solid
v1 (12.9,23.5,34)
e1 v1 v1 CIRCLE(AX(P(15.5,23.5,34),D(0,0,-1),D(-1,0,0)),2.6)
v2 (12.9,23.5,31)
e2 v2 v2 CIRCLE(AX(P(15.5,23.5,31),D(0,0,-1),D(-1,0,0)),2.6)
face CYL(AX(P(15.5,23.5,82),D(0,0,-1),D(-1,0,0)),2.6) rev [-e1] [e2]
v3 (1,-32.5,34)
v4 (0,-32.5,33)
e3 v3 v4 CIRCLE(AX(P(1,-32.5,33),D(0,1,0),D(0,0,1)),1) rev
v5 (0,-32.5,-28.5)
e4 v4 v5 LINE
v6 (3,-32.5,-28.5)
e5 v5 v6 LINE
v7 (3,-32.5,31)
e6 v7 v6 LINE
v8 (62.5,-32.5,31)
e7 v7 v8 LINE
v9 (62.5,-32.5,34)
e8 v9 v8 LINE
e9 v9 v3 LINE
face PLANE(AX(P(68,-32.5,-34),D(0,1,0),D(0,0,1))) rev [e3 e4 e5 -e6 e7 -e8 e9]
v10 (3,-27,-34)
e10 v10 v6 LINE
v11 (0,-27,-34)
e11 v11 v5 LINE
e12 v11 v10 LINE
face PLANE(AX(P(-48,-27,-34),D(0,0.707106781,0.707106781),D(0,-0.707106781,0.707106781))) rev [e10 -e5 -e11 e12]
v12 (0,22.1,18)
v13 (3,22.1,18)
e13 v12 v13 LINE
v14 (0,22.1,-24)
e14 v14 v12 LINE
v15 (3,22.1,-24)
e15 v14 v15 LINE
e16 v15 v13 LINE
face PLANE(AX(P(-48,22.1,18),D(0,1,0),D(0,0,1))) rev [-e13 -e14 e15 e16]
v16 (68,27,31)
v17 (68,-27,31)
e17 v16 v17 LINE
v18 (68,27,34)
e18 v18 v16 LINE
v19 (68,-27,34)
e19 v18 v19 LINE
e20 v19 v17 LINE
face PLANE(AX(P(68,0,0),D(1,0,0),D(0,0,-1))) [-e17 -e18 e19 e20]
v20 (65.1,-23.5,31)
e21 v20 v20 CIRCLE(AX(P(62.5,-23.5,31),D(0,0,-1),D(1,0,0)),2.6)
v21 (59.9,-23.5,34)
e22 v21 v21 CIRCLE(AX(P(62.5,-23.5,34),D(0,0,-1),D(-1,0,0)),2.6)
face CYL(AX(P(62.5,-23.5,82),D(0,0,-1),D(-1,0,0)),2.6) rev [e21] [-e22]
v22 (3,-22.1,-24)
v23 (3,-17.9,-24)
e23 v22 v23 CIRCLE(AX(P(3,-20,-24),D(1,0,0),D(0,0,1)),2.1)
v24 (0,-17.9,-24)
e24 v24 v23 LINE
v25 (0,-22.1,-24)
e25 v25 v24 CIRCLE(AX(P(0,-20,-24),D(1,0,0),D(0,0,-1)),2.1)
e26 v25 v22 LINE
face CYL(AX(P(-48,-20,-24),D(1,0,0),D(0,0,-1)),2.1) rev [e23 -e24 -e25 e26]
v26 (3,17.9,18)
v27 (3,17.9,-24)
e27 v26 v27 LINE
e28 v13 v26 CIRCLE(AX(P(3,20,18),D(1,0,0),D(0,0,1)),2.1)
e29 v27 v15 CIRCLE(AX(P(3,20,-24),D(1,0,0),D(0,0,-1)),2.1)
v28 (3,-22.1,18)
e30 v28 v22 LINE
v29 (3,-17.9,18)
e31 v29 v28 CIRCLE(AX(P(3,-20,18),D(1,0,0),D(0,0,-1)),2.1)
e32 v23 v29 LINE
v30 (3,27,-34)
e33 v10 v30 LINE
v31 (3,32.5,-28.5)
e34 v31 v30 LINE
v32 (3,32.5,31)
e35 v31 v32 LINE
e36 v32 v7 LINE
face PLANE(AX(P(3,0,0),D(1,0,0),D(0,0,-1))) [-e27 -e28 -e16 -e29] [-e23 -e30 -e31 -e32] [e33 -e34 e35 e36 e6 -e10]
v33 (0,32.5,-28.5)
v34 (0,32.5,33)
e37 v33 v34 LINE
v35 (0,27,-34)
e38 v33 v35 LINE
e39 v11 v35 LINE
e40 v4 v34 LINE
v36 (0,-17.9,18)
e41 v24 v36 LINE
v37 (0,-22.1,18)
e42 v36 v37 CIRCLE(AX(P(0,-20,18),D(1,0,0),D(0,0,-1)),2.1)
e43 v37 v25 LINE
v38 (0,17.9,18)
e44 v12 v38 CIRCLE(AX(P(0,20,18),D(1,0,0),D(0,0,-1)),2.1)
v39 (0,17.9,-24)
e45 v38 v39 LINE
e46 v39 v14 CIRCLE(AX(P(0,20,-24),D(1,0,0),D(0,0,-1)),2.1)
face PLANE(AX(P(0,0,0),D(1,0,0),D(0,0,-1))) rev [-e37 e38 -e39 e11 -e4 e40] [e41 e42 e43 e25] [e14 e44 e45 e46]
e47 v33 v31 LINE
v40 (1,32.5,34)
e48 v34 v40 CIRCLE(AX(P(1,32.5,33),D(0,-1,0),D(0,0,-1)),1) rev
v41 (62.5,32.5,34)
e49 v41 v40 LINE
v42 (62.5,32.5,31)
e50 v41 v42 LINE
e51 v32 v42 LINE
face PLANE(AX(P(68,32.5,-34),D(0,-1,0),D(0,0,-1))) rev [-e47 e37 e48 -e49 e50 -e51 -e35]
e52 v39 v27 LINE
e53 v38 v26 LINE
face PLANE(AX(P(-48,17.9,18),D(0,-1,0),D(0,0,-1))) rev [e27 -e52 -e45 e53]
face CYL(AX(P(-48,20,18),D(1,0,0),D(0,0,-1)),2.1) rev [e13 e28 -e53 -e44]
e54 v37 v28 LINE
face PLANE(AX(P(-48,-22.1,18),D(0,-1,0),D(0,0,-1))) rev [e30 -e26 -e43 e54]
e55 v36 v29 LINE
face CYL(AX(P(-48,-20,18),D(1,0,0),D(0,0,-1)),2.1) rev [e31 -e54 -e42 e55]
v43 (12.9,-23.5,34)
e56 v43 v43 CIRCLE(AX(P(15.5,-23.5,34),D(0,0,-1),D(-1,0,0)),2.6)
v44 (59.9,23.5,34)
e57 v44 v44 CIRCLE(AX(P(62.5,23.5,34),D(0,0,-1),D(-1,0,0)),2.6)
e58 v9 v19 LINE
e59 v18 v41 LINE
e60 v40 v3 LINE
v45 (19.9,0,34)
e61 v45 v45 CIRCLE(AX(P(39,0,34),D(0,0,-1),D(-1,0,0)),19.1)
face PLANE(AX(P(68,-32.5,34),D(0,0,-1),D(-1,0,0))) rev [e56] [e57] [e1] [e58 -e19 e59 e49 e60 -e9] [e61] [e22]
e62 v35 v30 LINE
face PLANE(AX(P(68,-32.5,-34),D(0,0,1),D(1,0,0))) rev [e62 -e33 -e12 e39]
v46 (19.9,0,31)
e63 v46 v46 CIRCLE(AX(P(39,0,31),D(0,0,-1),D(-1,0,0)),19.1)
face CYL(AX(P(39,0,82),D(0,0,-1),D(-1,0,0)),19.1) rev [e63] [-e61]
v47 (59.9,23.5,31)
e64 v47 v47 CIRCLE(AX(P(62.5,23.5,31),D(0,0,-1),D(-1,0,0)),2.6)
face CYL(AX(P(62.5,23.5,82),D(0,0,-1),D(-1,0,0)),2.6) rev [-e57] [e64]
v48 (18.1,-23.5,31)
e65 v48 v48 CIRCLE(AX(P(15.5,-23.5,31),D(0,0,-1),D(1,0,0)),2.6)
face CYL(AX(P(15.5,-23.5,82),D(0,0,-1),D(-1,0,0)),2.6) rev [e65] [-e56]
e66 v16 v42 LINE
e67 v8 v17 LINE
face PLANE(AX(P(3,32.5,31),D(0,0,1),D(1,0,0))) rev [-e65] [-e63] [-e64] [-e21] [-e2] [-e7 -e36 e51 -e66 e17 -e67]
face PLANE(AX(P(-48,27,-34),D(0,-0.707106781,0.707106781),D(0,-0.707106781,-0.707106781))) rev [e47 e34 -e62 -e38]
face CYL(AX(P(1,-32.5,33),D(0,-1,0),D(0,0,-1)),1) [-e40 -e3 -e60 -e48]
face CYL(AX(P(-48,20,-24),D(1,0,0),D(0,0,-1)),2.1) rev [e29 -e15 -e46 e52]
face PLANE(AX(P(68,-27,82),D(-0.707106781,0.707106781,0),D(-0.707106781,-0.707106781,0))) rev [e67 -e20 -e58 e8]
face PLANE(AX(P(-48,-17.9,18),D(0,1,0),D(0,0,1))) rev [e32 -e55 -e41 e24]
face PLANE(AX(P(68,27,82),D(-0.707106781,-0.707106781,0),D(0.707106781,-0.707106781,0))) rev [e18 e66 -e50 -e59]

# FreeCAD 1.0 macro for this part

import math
import FreeCAD as App
import Part
import Sketcher
Q = App.Units.Quantity


def edges_at(feature, points):
    """Names of the edges that pass closest to the given points."""
    edges = feature.Shape.Edges
    near = lambda p: min(range(len(edges)), key=lambda i: edges[i].distToShape(Part.Vertex(*p))[0])
    return sorted({f"Edge{near(p) + 1}" for p in points})


def add_polygon(sketch, points):
    """Adds a closed chain of lines whose ends are joined by coincident constraints."""
    first, n = sketch.GeometryCount, len(points)
    for a, b in zip(points, points[1:] + points[:1]):
        sketch.addGeometry(Part.LineSegment(App.Vector(*a, 0), App.Vector(*b, 0)), False)
    for i in range(n):
        sketch.addConstraint(Sketcher.Constraint("Coincident", first + i, 2, first + (i + 1) % n, 1))

doc = App.newDocument("Part")
body = doc.addObject("PartDesign::Body", "Body")

# Sketch on YZ plane
sketch1 = doc.addObject("Sketcher::SketchObject", "Sketch")
body.addObject(sketch1)
sketch1.AttachmentSupport = (doc.YZ_Plane, [""])
sketch1.MapMode = "FlatFace"
add_polygon(sketch1, [(32.5, 34), (-32.5, 34), (-32.5, -34), (32.5, -34)])  # lines 0-3
sketch1.addConstraint(Sketcher.Constraint("Horizontal", 0))
sketch1.addConstraint(Sketcher.Constraint("Vertical", 1))
sketch1.addConstraint(Sketcher.Constraint("Horizontal", 2))
sketch1.addConstraint(Sketcher.Constraint("Vertical", 3))
sketch1.addConstraint(Sketcher.Constraint("Symmetric", 0, 2, 2, 2, -1, 1))
sketch1.addConstraint(Sketcher.Constraint("DistanceX", 0, 2, 0, 1, Q("65 mm")))
sketch1.addConstraint(Sketcher.Constraint("DistanceY", 1, 2, 1, 1, Q("68 mm")))
pad1 = doc.addObject("PartDesign::Pad", "Pad")
body.addObject(pad1)
pad1.Profile = sketch1
pad1.Length = 68

# Sketch on YZ plane
sketch2 = doc.addObject("Sketcher::SketchObject", "Sketch001")
body.addObject(sketch2)
sketch2.AttachmentSupport = (doc.YZ_Plane, [""])
sketch2.MapMode = "FlatFace"
sketch2.AttachmentOffset = App.Placement(App.Vector(0, 0, 68), App.Rotation())
add_polygon(sketch2, [(32.5, 31), (-32.5, 31), (-32.5, -34), (32.5, -34)])  # lines 0-3
sketch2.addConstraint(Sketcher.Constraint("Horizontal", 0))
sketch2.addConstraint(Sketcher.Constraint("Vertical", 1))
sketch2.addConstraint(Sketcher.Constraint("Horizontal", 2))
sketch2.addConstraint(Sketcher.Constraint("Vertical", 3))
sketch2.addConstraint(Sketcher.Constraint("Equal", 2, 1))
sketch2.addConstraint(Sketcher.Constraint("DistanceX", 0, 2, 0, 1, Q("65 mm")))
sketch2.addConstraint(Sketcher.Constraint("DistanceY", -1, 1, 0, 2, Q("31 mm")))
sketch2.addConstraint(Sketcher.Constraint("DistanceX", 0, 2, -1, 1, Q("32.5 mm")))
pocket1 = doc.addObject("PartDesign::Pocket", "Pocket")
body.addObject(pocket1)
pocket1.Profile = sketch2
pocket1.Length = 65
doc.recompute()

fillet = doc.addObject("PartDesign::Fillet", "Fillet")
body.addObject(fillet)
fillet.Base = (pocket1, edges_at(pocket1, [(0, 0, 34)]))
fillet.Radius = 1

# Sketch on XY plane
sketch3 = doc.addObject("Sketcher::SketchObject", "Sketch002")
body.addObject(sketch3)
sketch3.AttachmentSupport = (doc.XY_Plane, [""])
sketch3.MapMode = "FlatFace"
sketch3.AttachmentOffset = App.Placement(App.Vector(0, 0, 31), App.Rotation())
sketch3.addGeometry(Part.Circle(App.Vector(62.5, 23.5, 0), App.Vector(0, 0, 1), 2.6), False)  # 0
sketch3.addGeometry(Part.Circle(App.Vector(15.5, 23.5, 0), App.Vector(0, 0, 1), 2.6), False)  # 1
sketch3.addGeometry(Part.Circle(App.Vector(39, 0, 0), App.Vector(0, 0, 1), 19.1), False)  # 2
sketch3.addGeometry(Part.Circle(App.Vector(15.5, -23.5, 0), App.Vector(0, 0, 1), 2.6), False)  # 3
sketch3.addGeometry(Part.Circle(App.Vector(62.5, -23.5, 0), App.Vector(0, 0, 1), 2.6), False)  # 4
add_polygon(sketch3, [(68, 32.5), (68, 27), (62.5, 32.5)])  # lines 5-7
add_polygon(sketch3, [(62.5, -32.5), (68, -27), (68, -32.5)])  # lines 8-10
sketch3.addConstraint(Sketcher.Constraint("Vertical", 5))
sketch3.addConstraint(Sketcher.Constraint("Horizontal", 7))
sketch3.addConstraint(Sketcher.Constraint("Vertical", 9))
sketch3.addConstraint(Sketcher.Constraint("Horizontal", 10))
sketch3.addConstraint(Sketcher.Constraint("Equal", 0, 1))
sketch3.addConstraint(Sketcher.Constraint("Equal", 1, 3))
sketch3.addConstraint(Sketcher.Constraint("Equal", 3, 4))
sketch3.addConstraint(Sketcher.Constraint("Symmetric", 1, 3, 3, 3, -1))
sketch3.addConstraint(Sketcher.Constraint("Symmetric", 0, 3, 4, 3, -1))
sketch3.addConstraint(Sketcher.Constraint("Symmetric", 5, 2, 8, 2, -1))
sketch3.addConstraint(Sketcher.Constraint("Symmetric", 6, 2, 10, 2, -1))
sketch3.addConstraint(Sketcher.Constraint("PointOnObject", 2, 3, -1))
sketch3.addConstraint(Sketcher.Constraint("Perpendicular", 6, 8))
sketch3.addConstraint(Sketcher.Constraint("Horizontal", 0, 3, 1, 3))
sketch3.addConstraint(Sketcher.Constraint("Vertical", 4, 3, 6, 2))
sketch3.addConstraint(Sketcher.Constraint("Diameter", 0, Q("5.2 mm")))
sketch3.addConstraint(Sketcher.Constraint("Diameter", 2, Q("38.2 mm")))
sketch3.addConstraint(Sketcher.Constraint("DistanceX", 7, 1, 7, 2, Q("5.5 mm")))
sketch3.addConstraint(Sketcher.Constraint("DistanceX", -1, 1, 2, 3, Q("39 mm")))
sketch3.addConstraint(Sketcher.Constraint("DistanceX", -1, 1, 5, 2, Q("68 mm")))
sketch3.addConstraint(Sketcher.Constraint("DistanceY", -1, 1, 5, 2, Q("27 mm")))
sketch3.addConstraint(Sketcher.Constraint("DistanceX", 1, 3, 0, 3, Q("47 mm")))
sketch3.addConstraint(Sketcher.Constraint("DistanceY", 3, 3, 1, 3, Q("47 mm")))
pocket2 = doc.addObject("PartDesign::Pocket", "Pocket001")
body.addObject(pocket2)
pocket2.Profile = sketch3
pocket2.Length = 51
pocket2.Reversed = True

# Sketch on YZ plane
sketch4 = doc.addObject("Sketcher::SketchObject", "Sketch003")
body.addObject(sketch4)
sketch4.AttachmentSupport = (doc.YZ_Plane, [""])
sketch4.MapMode = "FlatFace"
sketch4.AttachmentOffset = App.Placement(App.Vector(0, 0, 3), App.Rotation())
add_polygon(sketch4, [(32.5, -34), (32.5, -28.5), (27, -34)])  # lines 0-2
sketch4.addGeometry(Part.LineSegment(App.Vector(22.1, -24, 0), App.Vector(22.1, 18, 0)), False)  # 3
sketch4.addGeometry(Part.ArcOfCircle(Part.Circle(App.Vector(20, 18, 0), App.Vector(0, 0, 1), 2.1), math.radians(0), math.radians(180)), False)  # 4
sketch4.addGeometry(Part.LineSegment(App.Vector(17.9, 18, 0), App.Vector(17.9, -24, 0)), False)  # 5
sketch4.addGeometry(Part.ArcOfCircle(Part.Circle(App.Vector(20, -24, 0), App.Vector(0, 0, 1), 2.1), math.radians(180), math.radians(360)), False)  # 6
add_polygon(sketch4, [(-32.5, -34), (-27, -34), (-32.5, -28.5)])  # lines 7-9
sketch4.addGeometry(Part.LineSegment(App.Vector(-17.9, -24, 0), App.Vector(-17.9, 18, 0)), False)  # 10
sketch4.addGeometry(Part.ArcOfCircle(Part.Circle(App.Vector(-20, 18, 0), App.Vector(0, 0, 1), 2.1), math.radians(0), math.radians(180)), False)  # 11
sketch4.addGeometry(Part.LineSegment(App.Vector(-22.1, 18, 0), App.Vector(-22.1, -24, 0)), False)  # 12
sketch4.addGeometry(Part.ArcOfCircle(Part.Circle(App.Vector(-20, -24, 0), App.Vector(0, 0, 1), 2.1), math.radians(180), math.radians(360)), False)  # 13
sketch4.addConstraint(Sketcher.Constraint("Tangent", 3, 2, 4, 1))
sketch4.addConstraint(Sketcher.Constraint("Tangent", 4, 2, 5, 1))
sketch4.addConstraint(Sketcher.Constraint("Tangent", 5, 2, 6, 1))
sketch4.addConstraint(Sketcher.Constraint("Tangent", 6, 2, 3, 1))
sketch4.addConstraint(Sketcher.Constraint("Tangent", 10, 2, 11, 1))
sketch4.addConstraint(Sketcher.Constraint("Tangent", 11, 2, 12, 1))
sketch4.addConstraint(Sketcher.Constraint("Tangent", 12, 2, 13, 1))
sketch4.addConstraint(Sketcher.Constraint("Tangent", 13, 2, 10, 1))
sketch4.addConstraint(Sketcher.Constraint("Vertical", 0))
sketch4.addConstraint(Sketcher.Constraint("Horizontal", 2))
sketch4.addConstraint(Sketcher.Constraint("Vertical", 3))
sketch4.addConstraint(Sketcher.Constraint("Vertical", 5))
sketch4.addConstraint(Sketcher.Constraint("Horizontal", 7))
sketch4.addConstraint(Sketcher.Constraint("Vertical", 9))
sketch4.addConstraint(Sketcher.Constraint("Vertical", 10))
sketch4.addConstraint(Sketcher.Constraint("Vertical", 12))
sketch4.addConstraint(Sketcher.Constraint("Equal", 6, 11))
sketch4.addConstraint(Sketcher.Constraint("Symmetric", 4, 3, 11, 3, -2))
sketch4.addConstraint(Sketcher.Constraint("Symmetric", 1, 2, 7, 2, -2))
sketch4.addConstraint(Sketcher.Constraint("Symmetric", 0, 2, 8, 2, -2))
sketch4.addConstraint(Sketcher.Constraint("Perpendicular", 1, 8))
sketch4.addConstraint(Sketcher.Constraint("Horizontal", 6, 3, 13, 3))
sketch4.addConstraint(Sketcher.Constraint("Radius", 4, Q("2.1 mm")))
sketch4.addConstraint(Sketcher.Constraint("DistanceY", 3, 1, 3, 2, Q("42 mm")))
sketch4.addConstraint(Sketcher.Constraint("DistanceX", 2, 1, 2, 2, Q("5.5 mm")))
sketch4.addConstraint(Sketcher.Constraint("DistanceX", -1, 1, 4, 3, Q("20 mm")))
sketch4.addConstraint(Sketcher.Constraint("DistanceY", -1, 1, 4, 3, Q("18 mm")))
sketch4.addConstraint(Sketcher.Constraint("DistanceX", -1, 1, 1, 2, Q("27 mm")))
sketch4.addConstraint(Sketcher.Constraint("DistanceY", 1, 2, -1, 1, Q("34 mm")))
pocket3 = doc.addObject("PartDesign::Pocket", "Pocket002")
body.addObject(pocket3)
pocket3.Profile = sketch4
pocket3.Length = 51

doc.recompute()
